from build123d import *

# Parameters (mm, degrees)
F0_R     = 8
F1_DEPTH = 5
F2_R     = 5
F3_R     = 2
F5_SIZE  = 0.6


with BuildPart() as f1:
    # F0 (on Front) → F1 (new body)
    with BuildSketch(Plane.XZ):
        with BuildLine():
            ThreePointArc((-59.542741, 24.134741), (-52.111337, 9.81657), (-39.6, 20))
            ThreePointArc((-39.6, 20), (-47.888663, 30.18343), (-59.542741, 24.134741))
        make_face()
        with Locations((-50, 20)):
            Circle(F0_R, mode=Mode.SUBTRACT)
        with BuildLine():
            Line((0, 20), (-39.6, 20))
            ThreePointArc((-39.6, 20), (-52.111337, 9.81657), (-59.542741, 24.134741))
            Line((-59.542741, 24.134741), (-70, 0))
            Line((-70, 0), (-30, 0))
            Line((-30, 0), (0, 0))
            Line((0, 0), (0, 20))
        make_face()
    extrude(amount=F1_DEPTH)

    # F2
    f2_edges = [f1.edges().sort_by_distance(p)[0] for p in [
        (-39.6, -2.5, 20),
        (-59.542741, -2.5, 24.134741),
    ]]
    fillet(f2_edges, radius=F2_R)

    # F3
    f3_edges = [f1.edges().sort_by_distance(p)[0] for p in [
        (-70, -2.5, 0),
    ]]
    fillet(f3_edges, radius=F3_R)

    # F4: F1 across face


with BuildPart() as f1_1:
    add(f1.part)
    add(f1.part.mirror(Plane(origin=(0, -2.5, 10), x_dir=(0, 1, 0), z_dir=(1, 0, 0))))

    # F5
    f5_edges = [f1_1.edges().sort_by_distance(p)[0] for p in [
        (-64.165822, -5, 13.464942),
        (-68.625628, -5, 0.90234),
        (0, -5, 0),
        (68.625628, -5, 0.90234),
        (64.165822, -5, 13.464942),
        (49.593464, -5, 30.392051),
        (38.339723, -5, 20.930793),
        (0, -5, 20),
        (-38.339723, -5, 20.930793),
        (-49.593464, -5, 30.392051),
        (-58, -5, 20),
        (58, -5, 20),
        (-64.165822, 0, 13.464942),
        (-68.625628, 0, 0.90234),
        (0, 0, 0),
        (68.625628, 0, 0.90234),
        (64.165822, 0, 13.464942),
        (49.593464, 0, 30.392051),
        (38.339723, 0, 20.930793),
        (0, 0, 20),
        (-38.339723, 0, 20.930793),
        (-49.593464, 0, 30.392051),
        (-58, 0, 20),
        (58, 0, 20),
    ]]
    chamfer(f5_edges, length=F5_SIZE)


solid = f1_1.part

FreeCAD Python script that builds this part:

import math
import FreeCAD as App
import Part
import Sketcher
from FreeCAD import Vector


def edges_at(feature, points):
    """Names of the edges that pass closest to the given points."""
    edges = feature.Shape.Edges
    near = lambda p: min(range(len(edges)), key=lambda i: edges[i].distToShape(Part.Vertex(*p))[0])
    return sorted({f"Edge{near(p) + 1}" for p in points})

doc = App.newDocument("Part")
body = doc.addObject("PartDesign::Body", "Body")

# Sketch on XZ plane
sketch1 = body.newObject("Sketcher::SketchObject", "Sketch")
sketch1.AttachmentSupport = (doc.getObject("XZ_Plane"), [""])
sketch1.MapMode = "FlatFace"
sketch1.addGeometry(Part.ArcOfCircle(Part.Circle(Vector(-50, 20, 0), Vector(0, 0, 1), 10), math.radians(0), math.radians(157)), False)
sketch1.addGeometry(Part.LineSegment(Vector(-60, 24, 0), Vector(-70, 0, 0)), False)
sketch1.addGeometry(Part.LineSegment(Vector(-70, 0, 0), Vector(0, 0, 0)), False)
sketch1.addGeometry(Part.LineSegment(Vector(0, 0, 0), Vector(0, 20, 0)), False)
sketch1.addGeometry(Part.LineSegment(Vector(0, 20, 0), Vector(-40, 20, 0)), False)
sketch1.addGeometry(Part.Circle(Vector(-50, 20, 0), Vector(0, 0, 1), 8), False)
sketch1.addConstraint(Sketcher.Constraint("Tangent", 0, 2, 1, 1))
sketch1.addConstraint(Sketcher.Constraint("Coincident", 1, 2, 2, 1))
sketch1.addConstraint(Sketcher.Constraint("Coincident", 2, 2, 3, 1))
sketch1.addConstraint(Sketcher.Constraint("Coincident", 3, 2, 4, 1))
sketch1.addConstraint(Sketcher.Constraint("Coincident", 4, 2, 0, 1))
sketch1.addConstraint(Sketcher.Constraint("Horizontal", 2))
sketch1.addConstraint(Sketcher.Constraint("Vertical", 3))
sketch1.addConstraint(Sketcher.Constraint("Horizontal", 4))
sketch1.addConstraint(Sketcher.Constraint("Coincident", 2, 2, -1, 1))
sketch1.addConstraint(Sketcher.Constraint("Coincident", 5, 3, 0, 3))
sketch1.addConstraint(Sketcher.Constraint("Horizontal", 5, 3, 3, 2))
sketch1.addConstraint(Sketcher.Constraint("Diameter", 5, 16.0))
sketch1.addConstraint(Sketcher.Constraint("Radius", 0, 10.4))
sketch1.addConstraint(Sketcher.Constraint("DistanceX", 2, 1, 2, 2, 70.0))
sketch1.addConstraint(Sketcher.Constraint("DistanceY", 3, 1, 3, 2, 20.0))
sketch1.addConstraint(Sketcher.Constraint("DistanceX", 4, 2, 4, 1, 39.6))
pad1 = body.newObject("PartDesign::Pad", "Pad")
pad1.Profile = sketch1
pad1.Length = 5
doc.recompute()

fillet = body.newObject("PartDesign::Fillet", "Fillet")
fillet.Base = (pad1, edges_at(pad1, [(-39.6, -2.5, 20), (-59.543, -2.5, 24.135)]))
fillet.Radius = 5
doc.recompute()

fillet2 = body.newObject("PartDesign::Fillet", "Fillet001")
fillet2.Base = (fillet, edges_at(fillet, [(-70, -2.5, 0)]))
fillet2.Radius = 2
body2 = doc.addObject("PartDesign::Body", "Body001")
doc.recompute()

body2.BaseFeature = body
doc.recompute()

mirroring = doc.addObject("Part::Mirroring", "Mirroring")
mirroring.Source = body
mirroring.Base = Vector(0, -2.5, 10)
mirroring.Normal = Vector(1, 0, 0)
body3 = doc.addObject("PartDesign::Body", "Body002")
body3.BaseFeature = mirroring
boolean = body2.newObject("PartDesign::Boolean", "Boolean")
boolean.Type = "Fuse"
boolean.addObjects([body3])
doc.recompute()

chamfer = body2.newObject("PartDesign::Chamfer", "Chamfer")
chamfer.Base = (boolean, edges_at(boolean, [
    (-64.166, -5, 13.465),
    (-68.626, -5, 0.902),
    (0, -5, 0),
    (68.626, -5, 0.902),
    (64.166, -5, 13.465),
    (49.593, -5, 30.392),
    (38.34, -5, 20.931),
    (0, -5, 20),
    (-38.34, -5, 20.931),
    (-49.593, -5, 30.392),
    (-58, -5, 20),
    (58, -5, 20),
    (-64.166, 0, 13.465),
    (-68.626, 0, 0.902),
    (0, 0, 0),
    (68.626, 0, 0.902),
    (64.166, 0, 13.465),
    (49.593, 0, 30.392),
    (38.34, 0, 20.931),
    (0, 0, 20),
    (-38.34, 0, 20.931),
    (-49.593, 0, 30.392),
    (-58, 0, 20),
    (58, 0, 20),
]))
chamfer.Size = 0.6
mirroring.Visibility = False

doc.recompute()
